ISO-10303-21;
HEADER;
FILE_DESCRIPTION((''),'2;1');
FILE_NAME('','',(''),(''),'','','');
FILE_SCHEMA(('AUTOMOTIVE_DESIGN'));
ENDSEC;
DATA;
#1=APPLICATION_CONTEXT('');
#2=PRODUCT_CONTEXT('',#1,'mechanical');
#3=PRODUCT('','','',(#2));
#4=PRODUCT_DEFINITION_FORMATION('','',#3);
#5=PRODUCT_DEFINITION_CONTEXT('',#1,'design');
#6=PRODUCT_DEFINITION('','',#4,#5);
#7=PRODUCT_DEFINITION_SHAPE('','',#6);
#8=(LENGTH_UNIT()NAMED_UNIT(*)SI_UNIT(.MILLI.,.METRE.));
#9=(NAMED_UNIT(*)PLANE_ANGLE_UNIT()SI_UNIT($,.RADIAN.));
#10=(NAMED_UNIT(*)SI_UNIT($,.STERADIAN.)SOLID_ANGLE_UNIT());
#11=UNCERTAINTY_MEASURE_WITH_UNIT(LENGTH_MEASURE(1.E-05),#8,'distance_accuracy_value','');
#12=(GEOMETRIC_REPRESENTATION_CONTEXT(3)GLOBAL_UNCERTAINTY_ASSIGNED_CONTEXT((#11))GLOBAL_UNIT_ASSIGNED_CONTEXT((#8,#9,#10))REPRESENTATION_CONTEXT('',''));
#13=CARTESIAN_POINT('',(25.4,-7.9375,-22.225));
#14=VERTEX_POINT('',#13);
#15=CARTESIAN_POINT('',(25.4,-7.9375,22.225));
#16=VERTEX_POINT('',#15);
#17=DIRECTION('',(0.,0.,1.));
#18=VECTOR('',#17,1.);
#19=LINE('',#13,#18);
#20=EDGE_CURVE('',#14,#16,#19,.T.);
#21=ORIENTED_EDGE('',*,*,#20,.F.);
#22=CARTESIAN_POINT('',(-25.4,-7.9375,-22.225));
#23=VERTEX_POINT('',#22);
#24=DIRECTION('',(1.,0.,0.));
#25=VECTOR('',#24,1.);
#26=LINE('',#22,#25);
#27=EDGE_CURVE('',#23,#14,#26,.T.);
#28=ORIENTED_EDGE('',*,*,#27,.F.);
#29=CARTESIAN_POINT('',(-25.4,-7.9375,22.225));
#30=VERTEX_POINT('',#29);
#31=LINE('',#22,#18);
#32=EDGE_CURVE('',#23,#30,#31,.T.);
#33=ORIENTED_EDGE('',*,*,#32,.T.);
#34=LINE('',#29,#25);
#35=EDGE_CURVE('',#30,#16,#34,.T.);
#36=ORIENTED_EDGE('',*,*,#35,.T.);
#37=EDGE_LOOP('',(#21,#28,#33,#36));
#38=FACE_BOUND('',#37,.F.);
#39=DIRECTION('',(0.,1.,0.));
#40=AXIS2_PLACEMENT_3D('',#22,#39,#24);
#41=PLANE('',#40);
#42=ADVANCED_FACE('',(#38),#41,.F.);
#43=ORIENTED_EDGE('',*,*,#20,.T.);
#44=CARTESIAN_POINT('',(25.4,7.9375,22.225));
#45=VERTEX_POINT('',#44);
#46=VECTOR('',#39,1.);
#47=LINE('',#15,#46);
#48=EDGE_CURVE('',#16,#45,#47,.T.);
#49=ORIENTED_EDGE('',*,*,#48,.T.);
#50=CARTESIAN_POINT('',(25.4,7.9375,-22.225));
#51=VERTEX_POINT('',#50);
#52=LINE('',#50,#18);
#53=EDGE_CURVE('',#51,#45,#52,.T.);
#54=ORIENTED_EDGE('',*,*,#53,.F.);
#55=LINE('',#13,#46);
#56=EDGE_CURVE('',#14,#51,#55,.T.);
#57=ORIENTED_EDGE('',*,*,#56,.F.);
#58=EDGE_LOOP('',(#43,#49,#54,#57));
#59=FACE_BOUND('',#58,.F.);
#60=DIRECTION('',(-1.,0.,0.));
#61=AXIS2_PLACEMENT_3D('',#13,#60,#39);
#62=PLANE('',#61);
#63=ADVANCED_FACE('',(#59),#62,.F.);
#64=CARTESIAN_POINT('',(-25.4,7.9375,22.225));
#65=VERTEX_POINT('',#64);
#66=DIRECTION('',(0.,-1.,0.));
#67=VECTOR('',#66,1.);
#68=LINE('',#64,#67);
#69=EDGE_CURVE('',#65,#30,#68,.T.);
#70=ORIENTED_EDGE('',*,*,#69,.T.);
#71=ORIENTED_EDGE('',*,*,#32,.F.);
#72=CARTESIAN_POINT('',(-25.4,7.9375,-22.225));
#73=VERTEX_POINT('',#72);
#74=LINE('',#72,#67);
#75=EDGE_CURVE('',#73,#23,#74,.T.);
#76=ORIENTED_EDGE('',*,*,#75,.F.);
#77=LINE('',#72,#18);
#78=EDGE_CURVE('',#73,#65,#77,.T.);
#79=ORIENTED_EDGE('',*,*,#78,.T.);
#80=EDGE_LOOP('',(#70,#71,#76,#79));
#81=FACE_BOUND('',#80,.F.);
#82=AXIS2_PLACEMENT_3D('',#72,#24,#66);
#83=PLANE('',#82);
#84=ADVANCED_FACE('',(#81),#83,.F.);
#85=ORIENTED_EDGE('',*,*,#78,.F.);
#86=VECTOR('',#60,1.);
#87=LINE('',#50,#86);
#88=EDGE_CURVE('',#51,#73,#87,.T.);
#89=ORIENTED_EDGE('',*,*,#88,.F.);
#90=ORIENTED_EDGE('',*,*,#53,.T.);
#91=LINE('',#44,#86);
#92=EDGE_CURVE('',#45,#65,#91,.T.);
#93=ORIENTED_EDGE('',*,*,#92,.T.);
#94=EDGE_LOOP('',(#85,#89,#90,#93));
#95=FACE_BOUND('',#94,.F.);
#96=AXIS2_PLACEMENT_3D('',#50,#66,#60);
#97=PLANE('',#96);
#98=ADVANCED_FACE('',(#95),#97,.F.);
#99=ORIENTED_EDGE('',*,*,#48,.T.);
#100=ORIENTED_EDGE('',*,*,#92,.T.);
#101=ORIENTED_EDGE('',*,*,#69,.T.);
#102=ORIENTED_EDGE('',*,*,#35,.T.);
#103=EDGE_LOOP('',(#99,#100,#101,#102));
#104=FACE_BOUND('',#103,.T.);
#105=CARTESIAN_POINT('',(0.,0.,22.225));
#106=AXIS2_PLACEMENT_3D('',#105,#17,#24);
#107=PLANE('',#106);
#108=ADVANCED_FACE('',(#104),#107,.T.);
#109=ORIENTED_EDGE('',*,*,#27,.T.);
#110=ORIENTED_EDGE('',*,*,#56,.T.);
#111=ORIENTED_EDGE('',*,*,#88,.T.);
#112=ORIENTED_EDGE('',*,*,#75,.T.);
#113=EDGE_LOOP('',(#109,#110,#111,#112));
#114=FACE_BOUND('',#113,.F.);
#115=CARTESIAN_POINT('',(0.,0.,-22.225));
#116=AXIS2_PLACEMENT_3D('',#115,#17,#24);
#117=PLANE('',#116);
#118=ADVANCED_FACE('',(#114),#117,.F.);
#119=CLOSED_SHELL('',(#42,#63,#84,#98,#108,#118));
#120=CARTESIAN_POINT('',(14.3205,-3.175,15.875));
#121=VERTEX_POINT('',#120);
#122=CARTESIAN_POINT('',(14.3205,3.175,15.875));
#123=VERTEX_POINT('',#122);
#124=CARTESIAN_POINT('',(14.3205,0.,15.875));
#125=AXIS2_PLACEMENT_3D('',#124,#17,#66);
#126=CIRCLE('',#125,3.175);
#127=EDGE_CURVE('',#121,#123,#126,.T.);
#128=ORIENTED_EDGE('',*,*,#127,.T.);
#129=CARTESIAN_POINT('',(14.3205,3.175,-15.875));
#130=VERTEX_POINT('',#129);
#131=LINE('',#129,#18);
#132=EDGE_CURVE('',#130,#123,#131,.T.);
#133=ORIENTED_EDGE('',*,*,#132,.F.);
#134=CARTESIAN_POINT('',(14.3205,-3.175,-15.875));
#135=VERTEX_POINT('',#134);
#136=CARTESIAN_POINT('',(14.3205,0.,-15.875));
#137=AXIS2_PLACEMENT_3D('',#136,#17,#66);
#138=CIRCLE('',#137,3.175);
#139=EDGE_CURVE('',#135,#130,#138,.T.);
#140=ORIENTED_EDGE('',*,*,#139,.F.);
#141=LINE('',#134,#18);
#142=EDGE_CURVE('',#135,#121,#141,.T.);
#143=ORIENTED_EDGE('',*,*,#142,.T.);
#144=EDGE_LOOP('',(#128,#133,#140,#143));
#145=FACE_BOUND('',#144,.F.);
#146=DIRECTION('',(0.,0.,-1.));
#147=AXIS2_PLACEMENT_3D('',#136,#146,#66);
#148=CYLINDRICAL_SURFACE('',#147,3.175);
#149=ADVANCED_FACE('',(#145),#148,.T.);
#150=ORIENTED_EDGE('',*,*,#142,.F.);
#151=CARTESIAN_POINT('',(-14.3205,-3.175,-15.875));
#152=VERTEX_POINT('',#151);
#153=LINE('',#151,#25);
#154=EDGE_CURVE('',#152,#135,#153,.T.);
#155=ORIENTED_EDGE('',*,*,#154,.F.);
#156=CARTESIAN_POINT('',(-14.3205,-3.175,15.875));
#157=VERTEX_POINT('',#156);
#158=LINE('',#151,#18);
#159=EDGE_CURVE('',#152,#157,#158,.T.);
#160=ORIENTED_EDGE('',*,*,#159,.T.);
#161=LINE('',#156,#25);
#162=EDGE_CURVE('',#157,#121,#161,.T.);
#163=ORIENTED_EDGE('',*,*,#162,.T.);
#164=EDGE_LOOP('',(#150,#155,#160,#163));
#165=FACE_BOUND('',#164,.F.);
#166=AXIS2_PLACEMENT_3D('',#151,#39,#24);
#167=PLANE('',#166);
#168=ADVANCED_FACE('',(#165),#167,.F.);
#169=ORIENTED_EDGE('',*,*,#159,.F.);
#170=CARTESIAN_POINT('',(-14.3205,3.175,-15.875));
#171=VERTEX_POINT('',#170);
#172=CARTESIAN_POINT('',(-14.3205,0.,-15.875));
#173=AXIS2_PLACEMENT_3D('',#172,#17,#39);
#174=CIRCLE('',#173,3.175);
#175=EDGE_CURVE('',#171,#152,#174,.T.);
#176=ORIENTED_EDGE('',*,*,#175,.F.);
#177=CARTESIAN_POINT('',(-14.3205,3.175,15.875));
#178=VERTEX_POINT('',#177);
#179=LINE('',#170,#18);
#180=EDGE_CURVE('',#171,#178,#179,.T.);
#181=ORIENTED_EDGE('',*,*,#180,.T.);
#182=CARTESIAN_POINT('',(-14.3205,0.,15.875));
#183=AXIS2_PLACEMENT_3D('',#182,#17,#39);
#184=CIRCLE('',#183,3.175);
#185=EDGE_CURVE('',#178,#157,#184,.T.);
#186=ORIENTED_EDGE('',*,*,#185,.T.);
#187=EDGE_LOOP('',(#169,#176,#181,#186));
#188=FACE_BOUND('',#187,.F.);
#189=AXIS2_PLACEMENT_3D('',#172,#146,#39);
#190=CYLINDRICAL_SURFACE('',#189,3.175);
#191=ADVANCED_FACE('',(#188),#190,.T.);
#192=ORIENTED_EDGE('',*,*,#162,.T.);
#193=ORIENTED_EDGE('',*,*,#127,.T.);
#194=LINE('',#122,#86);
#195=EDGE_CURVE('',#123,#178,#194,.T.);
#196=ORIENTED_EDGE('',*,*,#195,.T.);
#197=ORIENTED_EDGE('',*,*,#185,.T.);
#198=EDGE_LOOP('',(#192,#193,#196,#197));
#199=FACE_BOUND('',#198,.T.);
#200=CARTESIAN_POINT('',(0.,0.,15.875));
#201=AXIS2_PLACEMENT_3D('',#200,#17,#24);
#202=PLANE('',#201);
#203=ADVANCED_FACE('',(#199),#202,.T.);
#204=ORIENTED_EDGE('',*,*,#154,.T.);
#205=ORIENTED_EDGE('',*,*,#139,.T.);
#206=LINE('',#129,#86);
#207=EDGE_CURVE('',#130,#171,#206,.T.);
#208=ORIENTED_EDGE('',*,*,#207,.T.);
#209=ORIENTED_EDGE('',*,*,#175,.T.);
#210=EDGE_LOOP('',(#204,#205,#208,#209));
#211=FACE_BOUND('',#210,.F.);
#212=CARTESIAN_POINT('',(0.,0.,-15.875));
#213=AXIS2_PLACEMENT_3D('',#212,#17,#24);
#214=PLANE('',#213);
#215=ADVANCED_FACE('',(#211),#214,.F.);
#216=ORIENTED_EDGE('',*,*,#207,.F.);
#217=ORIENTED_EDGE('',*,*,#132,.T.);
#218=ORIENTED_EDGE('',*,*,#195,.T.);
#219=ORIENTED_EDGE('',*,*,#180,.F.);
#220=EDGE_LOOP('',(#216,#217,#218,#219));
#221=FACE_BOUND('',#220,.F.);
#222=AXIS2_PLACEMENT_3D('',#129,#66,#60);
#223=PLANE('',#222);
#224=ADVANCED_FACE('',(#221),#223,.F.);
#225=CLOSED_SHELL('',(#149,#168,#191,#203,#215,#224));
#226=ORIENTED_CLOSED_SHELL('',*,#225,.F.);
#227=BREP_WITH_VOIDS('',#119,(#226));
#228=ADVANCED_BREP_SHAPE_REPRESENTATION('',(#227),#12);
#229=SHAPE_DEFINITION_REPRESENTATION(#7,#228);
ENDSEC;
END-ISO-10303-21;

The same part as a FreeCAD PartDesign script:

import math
import FreeCAD as App
import Part
import Sketcher
from FreeCAD import Vector
Q = App.Units.Quantity


def add_polygon(sketch, points):
    """Adds a closed chain of lines whose ends are joined by coincident constraints."""
    first, n = sketch.GeometryCount, len(points)
    for a, b in zip(points, points[1:] + points[:1]):
        sketch.addGeometry(Part.LineSegment(App.Vector(*a, 0), App.Vector(*b, 0)), False)
    for i in range(n):
        sketch.addConstraint(Sketcher.Constraint("Coincident", first + i, 2, first + (i + 1) % n, 1))

doc = App.newDocument("Part")
body = doc.addObject("PartDesign::Body", "Body")

# Sketch on XY plane
sketch1 = doc.addObject("Sketcher::SketchObject", "Sketch")
body.addObject(sketch1)
sketch1.AttachmentSupport = (doc.XY_Plane, [""])
sketch1.MapMode = "FlatFace"
sketch1.AttachmentOffset = App.Placement(Vector(0, 0, -0.875 * 25.4), App.Rotation())
add_polygon(sketch1, [(-25, 8), (-25, -8), (25, -8), (25, 8)])  # lines 0-3
sketch1.addConstraint(Sketcher.Constraint("Vertical", 0))
sketch1.addConstraint(Sketcher.Constraint("Horizontal", 1))
sketch1.addConstraint(Sketcher.Constraint("Vertical", 2))
sketch1.addConstraint(Sketcher.Constraint("Horizontal", 3))
sketch1.addConstraint(Sketcher.Constraint("Symmetric", 0, 2, 2, 2, -1, 1))
sketch1.addConstraint(Sketcher.Constraint("DistanceX", 1, 1, 1, 2, Q("2 in")))
sketch1.addConstraint(Sketcher.Constraint("DistanceY", 0, 2, 0, 1, Q("0.625 in")))
pad1 = doc.addObject("PartDesign::Pad", "Pad")
body.addObject(pad1)
pad1.Profile = sketch1
pad1.Length = Q("1.75 in")

# Sketch on XY plane
sketch2 = doc.addObject("Sketcher::SketchObject", "Sketch001")
body.addObject(sketch2)
sketch2.AttachmentSupport = (doc.XY_Plane, [""])
sketch2.MapMode = "FlatFace"
sketch2.AttachmentOffset = App.Placement(Vector(0, 0, -0.625 * 25.4), App.Rotation())
sketch2.addGeometry(Part.ArcOfCircle(Part.Circle(Vector(-14.3, 0, 0), Vector(0, 0, 1), 3.2), math.radians(90), math.radians(270)), False)
sketch2.addGeometry(Part.LineSegment(Vector(-14.3, -3.2, 0), Vector(14.3, -3.2, 0)), False)
sketch2.addGeometry(Part.ArcOfCircle(Part.Circle(Vector(14.3, 0, 0), Vector(0, 0, 1), 3.2), math.radians(-90), math.radians(90)), False)
sketch2.addGeometry(Part.LineSegment(Vector(14.3, 3.2, 0), Vector(-14.3, 3.2, 0)), False)
sketch2.addConstraint(Sketcher.Constraint("Tangent", 0, 2, 1, 1))
sketch2.addConstraint(Sketcher.Constraint("Tangent", 1, 2, 2, 1))
sketch2.addConstraint(Sketcher.Constraint("Tangent", 2, 2, 3, 1))
sketch2.addConstraint(Sketcher.Constraint("Tangent", 3, 2, 0, 1))
sketch2.addConstraint(Sketcher.Constraint("Horizontal", 1))
sketch2.addConstraint(Sketcher.Constraint("Horizontal", 3))
sketch2.addConstraint(Sketcher.Constraint("Symmetric", 0, 3, 2, 3, -1, 1))
sketch2.addConstraint(Sketcher.Constraint("Radius", 0, Q("0.125 in")))
sketch2.addConstraint(Sketcher.Constraint("DistanceX", 1, 1, 1, 2, Q("1.1276 in")))
pocket1 = doc.addObject("PartDesign::Pocket", "Pocket")
body.addObject(pocket1)
pocket1.Profile = sketch2
pocket1.Length = Q("1.25 in")
pocket1.Reversed = True

doc.recompute()
